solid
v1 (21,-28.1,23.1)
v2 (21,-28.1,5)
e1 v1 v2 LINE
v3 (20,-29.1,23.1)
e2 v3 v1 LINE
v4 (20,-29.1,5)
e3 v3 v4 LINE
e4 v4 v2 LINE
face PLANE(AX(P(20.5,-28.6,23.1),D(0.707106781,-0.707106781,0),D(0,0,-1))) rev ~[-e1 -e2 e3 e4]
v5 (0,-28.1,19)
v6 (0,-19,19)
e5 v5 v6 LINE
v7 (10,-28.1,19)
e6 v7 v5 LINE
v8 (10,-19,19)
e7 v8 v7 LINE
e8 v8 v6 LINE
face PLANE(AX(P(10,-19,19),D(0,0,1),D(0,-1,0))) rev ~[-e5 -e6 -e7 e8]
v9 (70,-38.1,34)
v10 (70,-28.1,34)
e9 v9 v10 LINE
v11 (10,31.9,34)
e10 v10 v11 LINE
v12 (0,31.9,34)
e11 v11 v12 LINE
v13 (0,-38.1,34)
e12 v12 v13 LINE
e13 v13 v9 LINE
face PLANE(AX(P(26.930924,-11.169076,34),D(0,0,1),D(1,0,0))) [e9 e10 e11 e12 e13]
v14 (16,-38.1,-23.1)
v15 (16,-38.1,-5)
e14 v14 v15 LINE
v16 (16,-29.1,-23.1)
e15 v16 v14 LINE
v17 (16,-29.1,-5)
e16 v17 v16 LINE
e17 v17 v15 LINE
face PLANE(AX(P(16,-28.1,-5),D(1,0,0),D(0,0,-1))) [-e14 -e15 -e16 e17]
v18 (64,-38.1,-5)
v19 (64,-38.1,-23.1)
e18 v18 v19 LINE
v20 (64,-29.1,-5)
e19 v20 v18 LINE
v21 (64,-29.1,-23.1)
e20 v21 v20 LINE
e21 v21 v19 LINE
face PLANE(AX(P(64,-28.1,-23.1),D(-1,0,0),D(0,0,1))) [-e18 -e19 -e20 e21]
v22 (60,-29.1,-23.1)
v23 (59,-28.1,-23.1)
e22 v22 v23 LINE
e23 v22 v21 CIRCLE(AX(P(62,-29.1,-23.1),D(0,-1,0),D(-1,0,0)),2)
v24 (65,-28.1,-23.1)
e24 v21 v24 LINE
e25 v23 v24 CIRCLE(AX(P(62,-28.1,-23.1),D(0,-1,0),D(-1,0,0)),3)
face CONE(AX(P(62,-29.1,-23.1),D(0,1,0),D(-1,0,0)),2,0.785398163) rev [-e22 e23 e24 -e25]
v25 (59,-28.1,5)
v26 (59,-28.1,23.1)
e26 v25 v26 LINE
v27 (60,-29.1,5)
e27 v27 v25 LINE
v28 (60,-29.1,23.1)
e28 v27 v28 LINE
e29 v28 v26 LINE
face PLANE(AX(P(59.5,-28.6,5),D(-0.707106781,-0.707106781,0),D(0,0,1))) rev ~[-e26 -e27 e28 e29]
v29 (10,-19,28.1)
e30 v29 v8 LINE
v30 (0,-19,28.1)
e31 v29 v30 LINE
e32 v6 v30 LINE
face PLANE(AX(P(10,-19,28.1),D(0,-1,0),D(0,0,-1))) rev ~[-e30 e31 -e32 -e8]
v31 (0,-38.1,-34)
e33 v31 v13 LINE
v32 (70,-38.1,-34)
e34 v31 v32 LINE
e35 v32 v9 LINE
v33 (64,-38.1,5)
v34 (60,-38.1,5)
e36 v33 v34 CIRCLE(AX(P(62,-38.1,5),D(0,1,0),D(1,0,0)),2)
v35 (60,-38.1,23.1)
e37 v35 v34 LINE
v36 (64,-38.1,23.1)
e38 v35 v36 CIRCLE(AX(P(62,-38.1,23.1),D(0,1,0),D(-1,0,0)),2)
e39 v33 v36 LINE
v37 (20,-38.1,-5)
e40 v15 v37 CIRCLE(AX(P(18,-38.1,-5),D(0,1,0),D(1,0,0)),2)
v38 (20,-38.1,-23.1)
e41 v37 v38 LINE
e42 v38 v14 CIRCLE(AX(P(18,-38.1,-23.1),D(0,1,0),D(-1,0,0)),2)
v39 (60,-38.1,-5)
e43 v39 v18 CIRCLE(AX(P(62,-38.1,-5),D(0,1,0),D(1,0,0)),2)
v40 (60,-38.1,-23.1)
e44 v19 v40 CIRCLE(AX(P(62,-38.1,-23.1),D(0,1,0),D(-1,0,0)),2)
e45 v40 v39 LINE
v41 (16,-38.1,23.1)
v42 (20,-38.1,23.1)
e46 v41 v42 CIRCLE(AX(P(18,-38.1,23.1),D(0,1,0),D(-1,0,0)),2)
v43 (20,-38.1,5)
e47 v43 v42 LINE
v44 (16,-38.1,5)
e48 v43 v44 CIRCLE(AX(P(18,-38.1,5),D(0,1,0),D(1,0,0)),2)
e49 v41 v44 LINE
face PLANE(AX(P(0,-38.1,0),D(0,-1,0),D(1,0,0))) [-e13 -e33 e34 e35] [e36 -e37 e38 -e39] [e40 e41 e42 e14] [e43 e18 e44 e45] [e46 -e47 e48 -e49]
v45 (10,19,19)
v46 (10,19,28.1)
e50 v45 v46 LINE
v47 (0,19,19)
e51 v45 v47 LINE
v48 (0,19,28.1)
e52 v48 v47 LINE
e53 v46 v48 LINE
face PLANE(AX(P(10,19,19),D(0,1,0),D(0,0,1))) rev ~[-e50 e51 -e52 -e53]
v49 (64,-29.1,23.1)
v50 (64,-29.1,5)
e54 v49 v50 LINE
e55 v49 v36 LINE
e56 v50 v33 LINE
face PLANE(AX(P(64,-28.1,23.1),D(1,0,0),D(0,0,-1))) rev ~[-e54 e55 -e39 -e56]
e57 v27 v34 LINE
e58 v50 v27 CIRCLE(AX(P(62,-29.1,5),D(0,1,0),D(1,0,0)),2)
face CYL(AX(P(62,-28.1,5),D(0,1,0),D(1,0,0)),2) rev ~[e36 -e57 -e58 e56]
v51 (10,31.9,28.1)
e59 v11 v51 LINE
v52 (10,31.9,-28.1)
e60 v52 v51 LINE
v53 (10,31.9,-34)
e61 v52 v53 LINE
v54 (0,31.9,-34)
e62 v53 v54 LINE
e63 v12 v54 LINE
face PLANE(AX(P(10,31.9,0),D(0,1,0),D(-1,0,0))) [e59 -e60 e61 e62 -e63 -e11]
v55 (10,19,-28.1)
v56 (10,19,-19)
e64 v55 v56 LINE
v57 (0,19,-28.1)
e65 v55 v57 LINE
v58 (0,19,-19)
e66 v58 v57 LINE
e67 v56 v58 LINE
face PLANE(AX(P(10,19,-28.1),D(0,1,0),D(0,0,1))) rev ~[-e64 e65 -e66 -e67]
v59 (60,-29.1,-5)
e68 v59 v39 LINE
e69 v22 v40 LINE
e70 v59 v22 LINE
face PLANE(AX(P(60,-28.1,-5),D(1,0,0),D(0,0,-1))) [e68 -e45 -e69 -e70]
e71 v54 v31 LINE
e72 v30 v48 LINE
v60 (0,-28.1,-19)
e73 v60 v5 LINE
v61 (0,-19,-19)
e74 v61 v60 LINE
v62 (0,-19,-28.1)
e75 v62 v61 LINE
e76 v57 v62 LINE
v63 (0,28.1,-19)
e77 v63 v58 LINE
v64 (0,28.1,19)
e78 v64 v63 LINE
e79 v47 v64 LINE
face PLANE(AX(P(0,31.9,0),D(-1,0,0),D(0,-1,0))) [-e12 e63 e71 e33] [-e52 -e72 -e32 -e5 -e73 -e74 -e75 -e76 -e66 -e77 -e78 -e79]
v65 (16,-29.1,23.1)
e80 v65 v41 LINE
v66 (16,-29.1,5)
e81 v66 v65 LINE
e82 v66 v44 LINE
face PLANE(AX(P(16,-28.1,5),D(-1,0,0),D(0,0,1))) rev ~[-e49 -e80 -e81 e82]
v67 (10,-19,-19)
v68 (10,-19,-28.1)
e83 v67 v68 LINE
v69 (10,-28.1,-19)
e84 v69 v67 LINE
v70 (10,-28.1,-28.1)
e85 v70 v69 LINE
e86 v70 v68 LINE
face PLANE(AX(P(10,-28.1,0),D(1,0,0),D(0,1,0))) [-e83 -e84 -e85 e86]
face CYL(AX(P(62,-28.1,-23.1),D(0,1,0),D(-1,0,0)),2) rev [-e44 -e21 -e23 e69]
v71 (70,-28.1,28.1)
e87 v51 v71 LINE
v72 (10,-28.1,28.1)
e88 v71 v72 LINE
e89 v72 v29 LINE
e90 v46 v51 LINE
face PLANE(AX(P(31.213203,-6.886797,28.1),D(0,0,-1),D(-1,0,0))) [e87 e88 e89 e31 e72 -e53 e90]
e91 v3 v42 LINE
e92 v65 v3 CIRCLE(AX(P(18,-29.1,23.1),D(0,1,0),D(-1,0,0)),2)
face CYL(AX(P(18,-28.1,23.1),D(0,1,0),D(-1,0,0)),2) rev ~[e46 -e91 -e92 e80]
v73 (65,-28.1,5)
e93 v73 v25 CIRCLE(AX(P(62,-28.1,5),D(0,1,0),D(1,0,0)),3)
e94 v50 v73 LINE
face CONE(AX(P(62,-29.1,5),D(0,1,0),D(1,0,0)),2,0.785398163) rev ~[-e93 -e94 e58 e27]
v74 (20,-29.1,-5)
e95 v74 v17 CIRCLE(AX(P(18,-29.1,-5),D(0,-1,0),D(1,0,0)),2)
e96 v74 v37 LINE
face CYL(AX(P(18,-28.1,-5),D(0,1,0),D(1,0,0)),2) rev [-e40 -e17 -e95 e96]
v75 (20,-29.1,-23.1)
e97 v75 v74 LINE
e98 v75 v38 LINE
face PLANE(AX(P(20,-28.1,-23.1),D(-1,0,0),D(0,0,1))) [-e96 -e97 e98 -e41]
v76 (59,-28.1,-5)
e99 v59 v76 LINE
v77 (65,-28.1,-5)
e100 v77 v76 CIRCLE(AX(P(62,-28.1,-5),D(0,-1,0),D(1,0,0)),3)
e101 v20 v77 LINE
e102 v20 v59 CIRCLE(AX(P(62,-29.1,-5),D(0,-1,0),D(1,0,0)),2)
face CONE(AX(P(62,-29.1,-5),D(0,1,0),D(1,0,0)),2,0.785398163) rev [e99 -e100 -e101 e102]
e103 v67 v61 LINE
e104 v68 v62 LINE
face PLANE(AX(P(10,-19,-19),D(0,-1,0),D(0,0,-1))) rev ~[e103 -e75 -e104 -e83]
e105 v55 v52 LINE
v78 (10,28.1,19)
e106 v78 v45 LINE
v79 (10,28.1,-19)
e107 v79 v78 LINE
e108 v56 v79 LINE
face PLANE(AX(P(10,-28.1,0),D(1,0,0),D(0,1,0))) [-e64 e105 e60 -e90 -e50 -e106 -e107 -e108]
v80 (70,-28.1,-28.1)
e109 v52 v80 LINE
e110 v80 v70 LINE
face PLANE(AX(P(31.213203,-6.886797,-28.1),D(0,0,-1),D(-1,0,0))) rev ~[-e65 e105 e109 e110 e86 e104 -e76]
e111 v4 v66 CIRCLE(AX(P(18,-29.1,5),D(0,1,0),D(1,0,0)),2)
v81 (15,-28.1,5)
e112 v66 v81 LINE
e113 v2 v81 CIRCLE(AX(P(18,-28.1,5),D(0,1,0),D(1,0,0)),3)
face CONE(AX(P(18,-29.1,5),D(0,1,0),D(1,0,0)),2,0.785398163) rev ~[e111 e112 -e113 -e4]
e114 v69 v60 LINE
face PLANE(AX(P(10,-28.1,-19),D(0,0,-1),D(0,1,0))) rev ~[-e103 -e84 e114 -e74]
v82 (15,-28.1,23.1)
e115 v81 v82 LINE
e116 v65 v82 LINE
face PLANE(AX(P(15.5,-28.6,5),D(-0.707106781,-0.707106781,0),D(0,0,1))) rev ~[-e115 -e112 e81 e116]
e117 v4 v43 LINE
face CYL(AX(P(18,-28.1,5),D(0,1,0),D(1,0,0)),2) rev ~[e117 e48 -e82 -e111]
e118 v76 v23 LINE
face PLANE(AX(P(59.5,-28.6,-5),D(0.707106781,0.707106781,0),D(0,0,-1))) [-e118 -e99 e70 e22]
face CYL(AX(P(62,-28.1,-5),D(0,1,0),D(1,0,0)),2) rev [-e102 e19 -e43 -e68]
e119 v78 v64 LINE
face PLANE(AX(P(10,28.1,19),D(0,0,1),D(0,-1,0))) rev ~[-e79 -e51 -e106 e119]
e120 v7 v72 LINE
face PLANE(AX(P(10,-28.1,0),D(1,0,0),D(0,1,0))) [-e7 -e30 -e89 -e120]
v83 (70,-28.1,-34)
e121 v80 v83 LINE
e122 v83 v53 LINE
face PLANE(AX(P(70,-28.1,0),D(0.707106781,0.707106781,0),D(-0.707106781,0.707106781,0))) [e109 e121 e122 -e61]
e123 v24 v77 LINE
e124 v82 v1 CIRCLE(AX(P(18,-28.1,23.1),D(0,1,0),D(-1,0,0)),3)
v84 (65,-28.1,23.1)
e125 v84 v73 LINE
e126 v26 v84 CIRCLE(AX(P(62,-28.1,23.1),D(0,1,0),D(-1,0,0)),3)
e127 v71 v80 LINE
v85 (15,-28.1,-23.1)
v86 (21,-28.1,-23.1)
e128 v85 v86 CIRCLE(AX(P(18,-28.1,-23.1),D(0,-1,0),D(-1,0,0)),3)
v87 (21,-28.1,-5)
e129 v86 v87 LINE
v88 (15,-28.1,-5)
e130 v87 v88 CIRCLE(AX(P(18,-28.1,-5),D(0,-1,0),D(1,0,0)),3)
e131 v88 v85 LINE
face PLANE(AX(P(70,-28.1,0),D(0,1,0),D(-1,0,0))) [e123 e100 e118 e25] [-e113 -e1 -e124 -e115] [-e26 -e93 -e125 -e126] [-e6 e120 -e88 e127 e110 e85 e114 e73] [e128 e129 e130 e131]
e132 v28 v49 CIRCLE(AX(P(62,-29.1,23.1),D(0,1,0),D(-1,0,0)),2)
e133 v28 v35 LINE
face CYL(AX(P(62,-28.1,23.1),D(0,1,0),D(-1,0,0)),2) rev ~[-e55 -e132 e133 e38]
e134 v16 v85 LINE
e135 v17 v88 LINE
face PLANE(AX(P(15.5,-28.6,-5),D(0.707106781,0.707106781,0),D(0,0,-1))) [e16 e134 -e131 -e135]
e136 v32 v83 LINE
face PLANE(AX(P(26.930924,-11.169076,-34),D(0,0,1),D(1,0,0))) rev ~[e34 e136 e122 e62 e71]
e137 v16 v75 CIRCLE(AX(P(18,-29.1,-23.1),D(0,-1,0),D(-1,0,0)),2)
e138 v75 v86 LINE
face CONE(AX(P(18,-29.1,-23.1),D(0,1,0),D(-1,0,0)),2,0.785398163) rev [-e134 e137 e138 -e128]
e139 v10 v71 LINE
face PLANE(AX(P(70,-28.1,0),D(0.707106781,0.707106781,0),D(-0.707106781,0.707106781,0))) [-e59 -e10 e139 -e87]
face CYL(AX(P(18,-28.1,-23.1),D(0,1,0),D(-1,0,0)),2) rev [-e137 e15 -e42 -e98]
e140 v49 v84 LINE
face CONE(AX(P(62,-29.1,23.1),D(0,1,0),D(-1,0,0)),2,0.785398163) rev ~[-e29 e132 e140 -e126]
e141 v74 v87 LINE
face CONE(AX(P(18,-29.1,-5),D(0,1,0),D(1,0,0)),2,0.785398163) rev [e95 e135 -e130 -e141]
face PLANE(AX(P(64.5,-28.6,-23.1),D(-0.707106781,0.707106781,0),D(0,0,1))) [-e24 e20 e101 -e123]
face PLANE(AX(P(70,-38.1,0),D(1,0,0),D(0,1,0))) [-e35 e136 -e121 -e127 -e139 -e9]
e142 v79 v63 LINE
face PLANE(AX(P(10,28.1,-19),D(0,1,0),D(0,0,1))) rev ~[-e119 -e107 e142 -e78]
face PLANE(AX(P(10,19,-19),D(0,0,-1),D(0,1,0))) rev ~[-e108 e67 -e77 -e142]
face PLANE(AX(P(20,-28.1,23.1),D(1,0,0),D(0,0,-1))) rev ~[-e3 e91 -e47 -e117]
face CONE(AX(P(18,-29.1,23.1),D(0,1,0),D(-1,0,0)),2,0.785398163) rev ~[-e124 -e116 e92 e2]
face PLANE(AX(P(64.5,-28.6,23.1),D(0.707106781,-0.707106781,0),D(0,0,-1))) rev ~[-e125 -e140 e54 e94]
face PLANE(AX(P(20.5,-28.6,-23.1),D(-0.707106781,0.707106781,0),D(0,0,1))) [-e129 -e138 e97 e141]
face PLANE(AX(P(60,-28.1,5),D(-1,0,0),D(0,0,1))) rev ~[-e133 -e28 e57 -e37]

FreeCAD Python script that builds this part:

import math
import FreeCAD as App
import Part
import Sketcher

V = App.Vector


def edges_at(feature, points):
    """Names of the edges that pass closest to the given points."""
    edges = feature.Shape.Edges
    near = lambda p: min(range(len(edges)), key=lambda i: edges[i].distToShape(Part.Vertex(*p))[0])
    return sorted({f"Edge{near(p) + 1}" for p in points})


def add_polygon(sketch, points):
    """Adds a closed chain of lines whose ends are joined by coincident constraints."""
    first, n = sketch.GeometryCount, len(points)
    for a, b in zip(points, points[1:] + points[:1]):
        sketch.addGeometry(Part.LineSegment(App.Vector(*a, 0), App.Vector(*b, 0)), False)
    for i in range(n):
        sketch.addConstraint(Sketcher.Constraint("Coincident", first + i, 2, first + (i + 1) % n, 1))

doc = App.newDocument("Part")
params = doc.addObject("Spreadsheet::Sheet", "Params")
for row, (alias, value) in enumerate([
    ("sketch1_width", "70 mm"),
    ("sketch1_width2", "10 mm"),
    ("pad1_length", "68 mm"),
    ("sketch2_width", "60 mm"),
    ("pocket1_length", "56.2 mm"),
    ("sketch3_radius", "2 mm"),
    ("sketch3_height", "18.1 mm"),
    ("chamfer_size", "1 mm"),
    ("sketch4_width", "38 mm"),
    ("sketch4_width2", "9.1 mm"),
], start=1):
    params.set(f"A{row}", alias)
    params.set(f"B{row}", "=" + value)
    params.setAlias(f"B{row}", alias)

body = doc.addObject("PartDesign::Body", "Body")

sketch1 = doc.addObject("Sketcher::SketchObject", "Sketch")
body.addObject(sketch1)
sketch1.AttachmentSupport = (doc.XY_Plane, [""])
sketch1.MapMode = "FlatFace"
add_polygon(sketch1, [(0, 32), (0, -38), (70, -38), (70, -28), (10, 32)])
sketch1.addConstraint(Sketcher.Constraint("Vertical", 0))
sketch1.addConstraint(Sketcher.Constraint("Horizontal", 1))
sketch1.addConstraint(Sketcher.Constraint("Vertical", 2))
sketch1.addConstraint(Sketcher.Constraint("Horizontal", 4))
sketch1.addConstraint(Sketcher.Constraint("PointOnObject", 0, 2, -2))
sketch1.addConstraint(Sketcher.Constraint("Equal", 1, 0))
sketch1.addConstraint(Sketcher.Constraint("Equal", 4, 2))
sketch1.addConstraint(Sketcher.Constraint("DistanceX", 1, 1, 1, 2, 70.0))
sketch1.addConstraint(Sketcher.Constraint("DistanceX", 4, 2, 4, 1, 10.0))
sketch1.addConstraint(Sketcher.Constraint("DistanceY", 0, 2, -1, 1, 38.1))
sketch1.setExpression("Constraints[12]", "Params.sketch1_width")
sketch1.setExpression("Constraints[13]", "Params.sketch1_width2")
pad1 = doc.addObject("PartDesign::Pad", "Pad")
body.addObject(pad1)
pad1.Profile = sketch1
pad1.setExpression("Length", "Params.pad1_length")
pad1.Midplane = True

sketch2 = doc.addObject("Sketcher::SketchObject", "Sketch001")
body.addObject(sketch2)
sketch2.AttachmentSupport = (doc.XY_Plane, [""])
sketch2.MapMode = "FlatFace"
add_polygon(sketch2, [(70, -28), (10, 32), (10, -28)])
sketch2.addConstraint(Sketcher.Constraint("Vertical", 1))
sketch2.addConstraint(Sketcher.Constraint("Horizontal", 2))
sketch2.addConstraint(Sketcher.Constraint("Equal", 2, 1))
sketch2.addConstraint(Sketcher.Constraint("DistanceX", 2, 1, 2, 2, 60.0))
sketch2.addConstraint(Sketcher.Constraint("DistanceX", -1, 1, 0, 2, 10.0))
sketch2.addConstraint(Sketcher.Constraint("DistanceY", -1, 1, 0, 2, 31.9))
sketch2.setExpression("Constraints[6]", "Params.sketch2_width")
pocket1 = doc.addObject("PartDesign::Pocket", "Pocket")
body.addObject(pocket1)
pocket1.Profile = sketch2
pocket1.setExpression("Length", "Params.pocket1_length")
pocket1.Midplane = True

sketch3 = doc.addObject("Sketcher::SketchObject", "Sketch002")
body.addObject(sketch3)
sketch3.AttachmentSupport = (doc.XZ_Plane, [""])
sketch3.MapMode = "FlatFace"
sketch3.AttachmentOffset = App.Placement(V(0, 0, 28.1), App.Rotation())
sketch3.addGeometry(Part.LineSegment(V(20, -5, 0), V(20, -23.1, 0)), False)
sketch3.addGeometry(Part.ArcOfCircle(Part.Circle(V(18, -23.1, 0), V(0, 0, 1), 2), math.radians(180), math.radians(360)), False)
sketch3.addGeometry(Part.LineSegment(V(16, -23.1, 0), V(16, -5, 0)), False)
sketch3.addGeometry(Part.ArcOfCircle(Part.Circle(V(18, -5, 0), V(0, 0, 1), 2), math.radians(0), math.radians(180)), False)
sketch3.addGeometry(Part.LineSegment(V(64, -5, 0), V(64, -23.1, 0)), False)
sketch3.addGeometry(Part.ArcOfCircle(Part.Circle(V(62, -23.1, 0), V(0, 0, 1), 2), math.radians(180), math.radians(360)), False)
sketch3.addGeometry(Part.LineSegment(V(60, -23.1, 0), V(60, -5, 0)), False)
sketch3.addGeometry(Part.ArcOfCircle(Part.Circle(V(62, -5, 0), V(0, 0, 1), 2), math.radians(0), math.radians(180)), False)
sketch3.addGeometry(Part.LineSegment(V(64, 23.1, 0), V(64, 5, 0)), False)
sketch3.addGeometry(Part.ArcOfCircle(Part.Circle(V(62, 5, 0), V(0, 0, 1), 2), math.radians(180), math.radians(360)), False)
sketch3.addGeometry(Part.LineSegment(V(60, 5, 0), V(60, 23.1, 0)), False)
sketch3.addGeometry(Part.ArcOfCircle(Part.Circle(V(62, 23.1, 0), V(0, 0, 1), 2), math.radians(0), math.radians(180)), False)
sketch3.addGeometry(Part.LineSegment(V(20, 23.1, 0), V(20, 5, 0)), False)
sketch3.addGeometry(Part.ArcOfCircle(Part.Circle(V(18, 5, 0), V(0, 0, 1), 2), math.radians(180), math.radians(360)), False)
sketch3.addGeometry(Part.LineSegment(V(16, 5, 0), V(16, 23.1, 0)), False)
sketch3.addGeometry(Part.ArcOfCircle(Part.Circle(V(18, 23.1, 0), V(0, 0, 1), 2), math.radians(0), math.radians(180)), False)
sketch3.addConstraint(Sketcher.Constraint("Tangent", 0, 2, 1, 2))
sketch3.addConstraint(Sketcher.Constraint("Tangent", 1, 1, 2, 1))
sketch3.addConstraint(Sketcher.Constraint("Tangent", 2, 2, 3, 2))
sketch3.addConstraint(Sketcher.Constraint("Tangent", 3, 1, 0, 1))
sketch3.addConstraint(Sketcher.Constraint("Tangent", 4, 2, 5, 2))
sketch3.addConstraint(Sketcher.Constraint("Tangent", 5, 1, 6, 1))
sketch3.addConstraint(Sketcher.Constraint("Tangent", 6, 2, 7, 2))
sketch3.addConstraint(Sketcher.Constraint("Tangent", 7, 1, 4, 1))
sketch3.addConstraint(Sketcher.Constraint("Tangent", 8, 2, 9, 2))
sketch3.addConstraint(Sketcher.Constraint("Tangent", 9, 1, 10, 1))
sketch3.addConstraint(Sketcher.Constraint("Tangent", 10, 2, 11, 2))
sketch3.addConstraint(Sketcher.Constraint("Tangent", 11, 1, 8, 1))
sketch3.addConstraint(Sketcher.Constraint("Tangent", 12, 2, 13, 2))
sketch3.addConstraint(Sketcher.Constraint("Tangent", 13, 1, 14, 1))
sketch3.addConstraint(Sketcher.Constraint("Tangent", 14, 2, 15, 2))
sketch3.addConstraint(Sketcher.Constraint("Tangent", 15, 1, 12, 1))
sketch3.addConstraint(Sketcher.Constraint("Vertical", 0))
sketch3.addConstraint(Sketcher.Constraint("Vertical", 2))
sketch3.addConstraint(Sketcher.Constraint("Vertical", 4))
sketch3.addConstraint(Sketcher.Constraint("Vertical", 6))
sketch3.addConstraint(Sketcher.Constraint("Vertical", 8))
sketch3.addConstraint(Sketcher.Constraint("Vertical", 10))
sketch3.addConstraint(Sketcher.Constraint("Vertical", 12))
sketch3.addConstraint(Sketcher.Constraint("Vertical", 14))
sketch3.addConstraint(Sketcher.Constraint("Equal", 3, 5))
sketch3.addConstraint(Sketcher.Constraint("Equal", 7, 9))
sketch3.addConstraint(Sketcher.Constraint("Equal", 11, 13))
sketch3.addConstraint(Sketcher.Constraint("Symmetric", 7, 3, 9, 3, -1))
sketch3.addConstraint(Sketcher.Constraint("Symmetric", 3, 3, 13, 3, -1))
sketch3.addConstraint(Sketcher.Constraint("Horizontal", 1, 3, 5, 3))
sketch3.addConstraint(Sketcher.Constraint("Horizontal", 3, 3, 7, 3))
sketch3.addConstraint(Sketcher.Constraint("Horizontal", 11, 3, 15, 3))
sketch3.addConstraint(Sketcher.Constraint("Equal", 6, 8))
sketch3.addConstraint(Sketcher.Constraint("Radius", 1, 2.0))
sketch3.addConstraint(Sketcher.Constraint("DistanceY", 0, 2, 0, 1, 18.1))
sketch3.addConstraint(Sketcher.Constraint("DistanceX", -1, 1, 1, 3, 18.0))
sketch3.addConstraint(Sketcher.Constraint("DistanceY", 3, 3, -1, 1, 5.0))
sketch3.addConstraint(Sketcher.Constraint("DistanceX", -1, 1, 5, 3, 62.0))
sketch3.setExpression("Constraints[33]", "Params.sketch3_radius")
sketch3.setExpression("Constraints[34]", "Params.sketch3_height")
pocket2 = doc.addObject("PartDesign::Pocket", "Pocket001")
body.addObject(pocket2)
pocket2.Profile = sketch3
pocket2.Type = "ThroughAll"
pocket2.Reversed = True
doc.recompute()

chamfer = doc.addObject("PartDesign::Chamfer", "Chamfer")
body.addObject(chamfer)
chamfer.Base = (pocket2, edges_at(pocket2, [
    (18, -28.1, 25.1),
    (20, -28.1, 14.05),
    (18, -28.1, 3),
    (16, -28.1, 14.05),
    (62, -28.1, 25.1),
    (64, -28.1, 14.05),
    (62, -28.1, 3),
    (60, -28.1, 14.05),
    (62, -28.1, -25.1),
    (60, -28.1, -14.05),
    (62, -28.1, -3),
    (64, -28.1, -14.05),
    (18, -28.1, -25.1),
    (16, -28.1, -14.05),
    (18, -28.1, -3),
    (20, -28.1, -14.05),
]))
chamfer.setExpression("Size", "Params.chamfer_size")

sketch4 = doc.addObject("Sketcher::SketchObject", "Sketch003")
body.addObject(sketch4)
sketch4.AttachmentSupport = (doc.YZ_Plane, [""])
sketch4.MapMode = "FlatFace"
sketch4.AttachmentOffset = App.Placement(V(0, 0, 10), App.Rotation())
add_polygon(sketch4, [(19, 28), (-19, 28), (-19, 19), (-28, 19), (-28, -19), (-19, -19), (-19, -28), (19, -28), (19, -19), (28, -19), (28, 19), (19, 19)])
sketch4.addConstraint(Sketcher.Constraint("Horizontal", 0))
sketch4.addConstraint(Sketcher.Constraint("Vertical", 1))
sketch4.addConstraint(Sketcher.Constraint("Horizontal", 2))
sketch4.addConstraint(Sketcher.Constraint("Vertical", 3))
sketch4.addConstraint(Sketcher.Constraint("Horizontal", 4))
sketch4.addConstraint(Sketcher.Constraint("Vertical", 5))
sketch4.addConstraint(Sketcher.Constraint("Horizontal", 6))
sketch4.addConstraint(Sketcher.Constraint("Vertical", 7))
sketch4.addConstraint(Sketcher.Constraint("Horizontal", 8))
sketch4.addConstraint(Sketcher.Constraint("Vertical", 9))
sketch4.addConstraint(Sketcher.Constraint("Horizontal", 10))
sketch4.addConstraint(Sketcher.Constraint("Vertical", 11))
sketch4.addConstraint(Sketcher.Constraint("Symmetric", 0, 2, 6, 2, -1, 1))
sketch4.addConstraint(Sketcher.Constraint("Symmetric", 2, 2, 8, 2, -1, 1))
sketch4.addConstraint(Sketcher.Constraint("Symmetric", 4, 2, 10, 2, -1, 1))
sketch4.addConstraint(Sketcher.Constraint("Symmetric", 4, 2, 7, 2, -2))
sketch4.addConstraint(Sketcher.Constraint("Equal", 10, 1))
sketch4.addConstraint(Sketcher.Constraint("Equal", 6, 3))
sketch4.addConstraint(Sketcher.Constraint("DistanceX", 0, 2, 0, 1, 38.0))
sketch4.addConstraint(Sketcher.Constraint("DistanceX", 2, 2, 2, 1, 9.1))
sketch4.setExpression("Constraints[30]", "Params.sketch4_width")
sketch4.setExpression("Constraints[31]", "Params.sketch4_width2")
pocket3 = doc.addObject("PartDesign::Pocket", "Pocket002")
body.addObject(pocket3)
pocket3.Profile = sketch4
pocket3.Type = "ThroughAll"

doc.recompute()
